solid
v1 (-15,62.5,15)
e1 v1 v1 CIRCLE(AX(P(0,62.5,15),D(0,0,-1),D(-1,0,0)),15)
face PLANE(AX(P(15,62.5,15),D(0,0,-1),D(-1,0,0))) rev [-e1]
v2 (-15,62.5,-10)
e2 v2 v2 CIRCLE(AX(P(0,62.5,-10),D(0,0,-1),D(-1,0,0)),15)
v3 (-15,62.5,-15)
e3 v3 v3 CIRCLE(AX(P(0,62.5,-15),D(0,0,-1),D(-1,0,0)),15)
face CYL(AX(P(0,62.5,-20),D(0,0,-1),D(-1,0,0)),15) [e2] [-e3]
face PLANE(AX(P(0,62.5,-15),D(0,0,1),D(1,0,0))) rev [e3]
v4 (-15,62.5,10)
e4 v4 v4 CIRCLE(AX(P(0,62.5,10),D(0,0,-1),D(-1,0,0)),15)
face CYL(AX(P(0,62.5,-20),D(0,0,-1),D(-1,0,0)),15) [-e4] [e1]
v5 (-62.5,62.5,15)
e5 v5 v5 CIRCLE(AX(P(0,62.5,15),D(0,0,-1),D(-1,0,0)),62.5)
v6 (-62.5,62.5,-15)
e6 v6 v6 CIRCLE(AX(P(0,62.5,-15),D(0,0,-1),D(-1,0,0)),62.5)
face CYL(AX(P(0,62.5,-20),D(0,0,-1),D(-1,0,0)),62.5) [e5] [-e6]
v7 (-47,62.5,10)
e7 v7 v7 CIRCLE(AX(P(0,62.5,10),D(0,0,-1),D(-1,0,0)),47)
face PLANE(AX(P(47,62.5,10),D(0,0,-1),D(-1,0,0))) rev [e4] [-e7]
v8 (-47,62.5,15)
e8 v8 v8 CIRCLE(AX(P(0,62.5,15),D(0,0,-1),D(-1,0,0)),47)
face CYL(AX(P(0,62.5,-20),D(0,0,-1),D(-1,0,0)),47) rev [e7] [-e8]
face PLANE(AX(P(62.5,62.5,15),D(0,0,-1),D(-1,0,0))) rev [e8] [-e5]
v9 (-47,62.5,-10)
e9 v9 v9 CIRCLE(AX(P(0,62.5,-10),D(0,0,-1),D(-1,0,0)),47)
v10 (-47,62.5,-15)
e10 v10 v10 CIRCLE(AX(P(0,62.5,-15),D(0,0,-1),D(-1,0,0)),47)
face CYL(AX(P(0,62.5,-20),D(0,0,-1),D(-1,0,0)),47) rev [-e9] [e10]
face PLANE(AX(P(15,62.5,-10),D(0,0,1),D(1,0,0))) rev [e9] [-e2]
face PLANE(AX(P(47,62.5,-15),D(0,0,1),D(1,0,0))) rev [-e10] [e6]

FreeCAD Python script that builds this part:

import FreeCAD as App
import Part
import Sketcher

V = App.Vector
Q = App.Units.Quantity


def add_polygon(sketch, points):
    """Adds a closed chain of lines whose ends are joined by coincident constraints."""
    first, n = sketch.GeometryCount, len(points)
    for a, b in zip(points, points[1:] + points[:1]):
        sketch.addGeometry(Part.LineSegment(App.Vector(*a, 0), App.Vector(*b, 0)), False)
    for i in range(n):
        sketch.addConstraint(Sketcher.Constraint("Coincident", first + i, 2, first + (i + 1) % n, 1))

doc = App.newDocument("Part")
params = doc.addObject("Spreadsheet::Sheet", "Params")
for row, (alias, value) in enumerate([
    ("sketch1_width", "15 mm"),
    ("sketch1_width2", "32 mm"),
    ("sketch1_height", "30 mm"),
    ("sketch1_height2", "5 mm"),
    ("sketch1_width3", "15.5 mm"),
    ("revolution_angle", "360 deg"),
], start=1):
    params.set(f"A{row}", alias)
    params.set(f"B{row}", "=" + value)
    params.setAlias(f"B{row}", alias)

body = doc.addObject("PartDesign::Body", "Body")

# Sketch on XZ plane
sketch1 = doc.addObject("Sketcher::SketchObject", "Sketch")
body.addObject(sketch1)
sketch1.AttachmentSupport = (doc.XZ_Plane, [""])
sketch1.MapMode = "FlatFace"
sketch1.AttachmentOffset = App.Placement(V(0, 0, -62.5), App.Rotation())
add_polygon(sketch1, [(15, -15), (0, -15), (0, 15), (15, 15), (15, 10), (47, 10), (47, 15), (62.5, 15), (62.5, -15), (47, -15), (47, -10), (15, -10)])  # lines 0-11
sketch1.addConstraint([
    Sketcher.Constraint("Horizontal", 0),
    Sketcher.Constraint("Vertical", 1),
    Sketcher.Constraint("Horizontal", 2),
    Sketcher.Constraint("Vertical", 3),
    Sketcher.Constraint("Horizontal", 4),
    Sketcher.Constraint("Vertical", 5),
    Sketcher.Constraint("Horizontal", 6),
    Sketcher.Constraint("Vertical", 7),
    Sketcher.Constraint("Horizontal", 8),
    Sketcher.Constraint("Vertical", 9),
    Sketcher.Constraint("Horizontal", 10),
    Sketcher.Constraint("Vertical", 11),
    Sketcher.Constraint("Symmetric", 0, 2, 1, 2, -1, 1),
    Sketcher.Constraint("Symmetric", 5, 2, 8, 2, -1),
    Sketcher.Constraint("Symmetric", 3, 2, 10, 2, -1),
    Sketcher.Constraint("Horizontal", 2, 2, 5, 2),
    Sketcher.Constraint("DistanceX", 0, 2, 0, 1, Q("15 mm")),
    Sketcher.Constraint("DistanceX", 4, 1, 4, 2, Q("32 mm")),
    Sketcher.Constraint("DistanceY", 1, 1, 1, 2, Q("30 mm")),
    Sketcher.Constraint("DistanceY", 3, 2, 3, 1, Q("5 mm")),
    Sketcher.Constraint("DistanceX", 6, 1, 6, 2, Q("15.5 mm")),
])
sketch1.setExpression("Constraints[28]", "Params.sketch1_width")
sketch1.setExpression("Constraints[29]", "Params.sketch1_width2")
sketch1.setExpression("Constraints[30]", "Params.sketch1_height")
sketch1.setExpression("Constraints[31]", "Params.sketch1_height2")
sketch1.setExpression("Constraints[32]", "Params.sketch1_width3")
revolution = doc.addObject("PartDesign::Revolution", "Revolution")
body.addObject(revolution)
revolution.Profile = sketch1
revolution.ReferenceAxis = (sketch1, ["V_Axis"])
revolution.setExpression("Angle", "Params.revolution_angle")

doc.recompute()
